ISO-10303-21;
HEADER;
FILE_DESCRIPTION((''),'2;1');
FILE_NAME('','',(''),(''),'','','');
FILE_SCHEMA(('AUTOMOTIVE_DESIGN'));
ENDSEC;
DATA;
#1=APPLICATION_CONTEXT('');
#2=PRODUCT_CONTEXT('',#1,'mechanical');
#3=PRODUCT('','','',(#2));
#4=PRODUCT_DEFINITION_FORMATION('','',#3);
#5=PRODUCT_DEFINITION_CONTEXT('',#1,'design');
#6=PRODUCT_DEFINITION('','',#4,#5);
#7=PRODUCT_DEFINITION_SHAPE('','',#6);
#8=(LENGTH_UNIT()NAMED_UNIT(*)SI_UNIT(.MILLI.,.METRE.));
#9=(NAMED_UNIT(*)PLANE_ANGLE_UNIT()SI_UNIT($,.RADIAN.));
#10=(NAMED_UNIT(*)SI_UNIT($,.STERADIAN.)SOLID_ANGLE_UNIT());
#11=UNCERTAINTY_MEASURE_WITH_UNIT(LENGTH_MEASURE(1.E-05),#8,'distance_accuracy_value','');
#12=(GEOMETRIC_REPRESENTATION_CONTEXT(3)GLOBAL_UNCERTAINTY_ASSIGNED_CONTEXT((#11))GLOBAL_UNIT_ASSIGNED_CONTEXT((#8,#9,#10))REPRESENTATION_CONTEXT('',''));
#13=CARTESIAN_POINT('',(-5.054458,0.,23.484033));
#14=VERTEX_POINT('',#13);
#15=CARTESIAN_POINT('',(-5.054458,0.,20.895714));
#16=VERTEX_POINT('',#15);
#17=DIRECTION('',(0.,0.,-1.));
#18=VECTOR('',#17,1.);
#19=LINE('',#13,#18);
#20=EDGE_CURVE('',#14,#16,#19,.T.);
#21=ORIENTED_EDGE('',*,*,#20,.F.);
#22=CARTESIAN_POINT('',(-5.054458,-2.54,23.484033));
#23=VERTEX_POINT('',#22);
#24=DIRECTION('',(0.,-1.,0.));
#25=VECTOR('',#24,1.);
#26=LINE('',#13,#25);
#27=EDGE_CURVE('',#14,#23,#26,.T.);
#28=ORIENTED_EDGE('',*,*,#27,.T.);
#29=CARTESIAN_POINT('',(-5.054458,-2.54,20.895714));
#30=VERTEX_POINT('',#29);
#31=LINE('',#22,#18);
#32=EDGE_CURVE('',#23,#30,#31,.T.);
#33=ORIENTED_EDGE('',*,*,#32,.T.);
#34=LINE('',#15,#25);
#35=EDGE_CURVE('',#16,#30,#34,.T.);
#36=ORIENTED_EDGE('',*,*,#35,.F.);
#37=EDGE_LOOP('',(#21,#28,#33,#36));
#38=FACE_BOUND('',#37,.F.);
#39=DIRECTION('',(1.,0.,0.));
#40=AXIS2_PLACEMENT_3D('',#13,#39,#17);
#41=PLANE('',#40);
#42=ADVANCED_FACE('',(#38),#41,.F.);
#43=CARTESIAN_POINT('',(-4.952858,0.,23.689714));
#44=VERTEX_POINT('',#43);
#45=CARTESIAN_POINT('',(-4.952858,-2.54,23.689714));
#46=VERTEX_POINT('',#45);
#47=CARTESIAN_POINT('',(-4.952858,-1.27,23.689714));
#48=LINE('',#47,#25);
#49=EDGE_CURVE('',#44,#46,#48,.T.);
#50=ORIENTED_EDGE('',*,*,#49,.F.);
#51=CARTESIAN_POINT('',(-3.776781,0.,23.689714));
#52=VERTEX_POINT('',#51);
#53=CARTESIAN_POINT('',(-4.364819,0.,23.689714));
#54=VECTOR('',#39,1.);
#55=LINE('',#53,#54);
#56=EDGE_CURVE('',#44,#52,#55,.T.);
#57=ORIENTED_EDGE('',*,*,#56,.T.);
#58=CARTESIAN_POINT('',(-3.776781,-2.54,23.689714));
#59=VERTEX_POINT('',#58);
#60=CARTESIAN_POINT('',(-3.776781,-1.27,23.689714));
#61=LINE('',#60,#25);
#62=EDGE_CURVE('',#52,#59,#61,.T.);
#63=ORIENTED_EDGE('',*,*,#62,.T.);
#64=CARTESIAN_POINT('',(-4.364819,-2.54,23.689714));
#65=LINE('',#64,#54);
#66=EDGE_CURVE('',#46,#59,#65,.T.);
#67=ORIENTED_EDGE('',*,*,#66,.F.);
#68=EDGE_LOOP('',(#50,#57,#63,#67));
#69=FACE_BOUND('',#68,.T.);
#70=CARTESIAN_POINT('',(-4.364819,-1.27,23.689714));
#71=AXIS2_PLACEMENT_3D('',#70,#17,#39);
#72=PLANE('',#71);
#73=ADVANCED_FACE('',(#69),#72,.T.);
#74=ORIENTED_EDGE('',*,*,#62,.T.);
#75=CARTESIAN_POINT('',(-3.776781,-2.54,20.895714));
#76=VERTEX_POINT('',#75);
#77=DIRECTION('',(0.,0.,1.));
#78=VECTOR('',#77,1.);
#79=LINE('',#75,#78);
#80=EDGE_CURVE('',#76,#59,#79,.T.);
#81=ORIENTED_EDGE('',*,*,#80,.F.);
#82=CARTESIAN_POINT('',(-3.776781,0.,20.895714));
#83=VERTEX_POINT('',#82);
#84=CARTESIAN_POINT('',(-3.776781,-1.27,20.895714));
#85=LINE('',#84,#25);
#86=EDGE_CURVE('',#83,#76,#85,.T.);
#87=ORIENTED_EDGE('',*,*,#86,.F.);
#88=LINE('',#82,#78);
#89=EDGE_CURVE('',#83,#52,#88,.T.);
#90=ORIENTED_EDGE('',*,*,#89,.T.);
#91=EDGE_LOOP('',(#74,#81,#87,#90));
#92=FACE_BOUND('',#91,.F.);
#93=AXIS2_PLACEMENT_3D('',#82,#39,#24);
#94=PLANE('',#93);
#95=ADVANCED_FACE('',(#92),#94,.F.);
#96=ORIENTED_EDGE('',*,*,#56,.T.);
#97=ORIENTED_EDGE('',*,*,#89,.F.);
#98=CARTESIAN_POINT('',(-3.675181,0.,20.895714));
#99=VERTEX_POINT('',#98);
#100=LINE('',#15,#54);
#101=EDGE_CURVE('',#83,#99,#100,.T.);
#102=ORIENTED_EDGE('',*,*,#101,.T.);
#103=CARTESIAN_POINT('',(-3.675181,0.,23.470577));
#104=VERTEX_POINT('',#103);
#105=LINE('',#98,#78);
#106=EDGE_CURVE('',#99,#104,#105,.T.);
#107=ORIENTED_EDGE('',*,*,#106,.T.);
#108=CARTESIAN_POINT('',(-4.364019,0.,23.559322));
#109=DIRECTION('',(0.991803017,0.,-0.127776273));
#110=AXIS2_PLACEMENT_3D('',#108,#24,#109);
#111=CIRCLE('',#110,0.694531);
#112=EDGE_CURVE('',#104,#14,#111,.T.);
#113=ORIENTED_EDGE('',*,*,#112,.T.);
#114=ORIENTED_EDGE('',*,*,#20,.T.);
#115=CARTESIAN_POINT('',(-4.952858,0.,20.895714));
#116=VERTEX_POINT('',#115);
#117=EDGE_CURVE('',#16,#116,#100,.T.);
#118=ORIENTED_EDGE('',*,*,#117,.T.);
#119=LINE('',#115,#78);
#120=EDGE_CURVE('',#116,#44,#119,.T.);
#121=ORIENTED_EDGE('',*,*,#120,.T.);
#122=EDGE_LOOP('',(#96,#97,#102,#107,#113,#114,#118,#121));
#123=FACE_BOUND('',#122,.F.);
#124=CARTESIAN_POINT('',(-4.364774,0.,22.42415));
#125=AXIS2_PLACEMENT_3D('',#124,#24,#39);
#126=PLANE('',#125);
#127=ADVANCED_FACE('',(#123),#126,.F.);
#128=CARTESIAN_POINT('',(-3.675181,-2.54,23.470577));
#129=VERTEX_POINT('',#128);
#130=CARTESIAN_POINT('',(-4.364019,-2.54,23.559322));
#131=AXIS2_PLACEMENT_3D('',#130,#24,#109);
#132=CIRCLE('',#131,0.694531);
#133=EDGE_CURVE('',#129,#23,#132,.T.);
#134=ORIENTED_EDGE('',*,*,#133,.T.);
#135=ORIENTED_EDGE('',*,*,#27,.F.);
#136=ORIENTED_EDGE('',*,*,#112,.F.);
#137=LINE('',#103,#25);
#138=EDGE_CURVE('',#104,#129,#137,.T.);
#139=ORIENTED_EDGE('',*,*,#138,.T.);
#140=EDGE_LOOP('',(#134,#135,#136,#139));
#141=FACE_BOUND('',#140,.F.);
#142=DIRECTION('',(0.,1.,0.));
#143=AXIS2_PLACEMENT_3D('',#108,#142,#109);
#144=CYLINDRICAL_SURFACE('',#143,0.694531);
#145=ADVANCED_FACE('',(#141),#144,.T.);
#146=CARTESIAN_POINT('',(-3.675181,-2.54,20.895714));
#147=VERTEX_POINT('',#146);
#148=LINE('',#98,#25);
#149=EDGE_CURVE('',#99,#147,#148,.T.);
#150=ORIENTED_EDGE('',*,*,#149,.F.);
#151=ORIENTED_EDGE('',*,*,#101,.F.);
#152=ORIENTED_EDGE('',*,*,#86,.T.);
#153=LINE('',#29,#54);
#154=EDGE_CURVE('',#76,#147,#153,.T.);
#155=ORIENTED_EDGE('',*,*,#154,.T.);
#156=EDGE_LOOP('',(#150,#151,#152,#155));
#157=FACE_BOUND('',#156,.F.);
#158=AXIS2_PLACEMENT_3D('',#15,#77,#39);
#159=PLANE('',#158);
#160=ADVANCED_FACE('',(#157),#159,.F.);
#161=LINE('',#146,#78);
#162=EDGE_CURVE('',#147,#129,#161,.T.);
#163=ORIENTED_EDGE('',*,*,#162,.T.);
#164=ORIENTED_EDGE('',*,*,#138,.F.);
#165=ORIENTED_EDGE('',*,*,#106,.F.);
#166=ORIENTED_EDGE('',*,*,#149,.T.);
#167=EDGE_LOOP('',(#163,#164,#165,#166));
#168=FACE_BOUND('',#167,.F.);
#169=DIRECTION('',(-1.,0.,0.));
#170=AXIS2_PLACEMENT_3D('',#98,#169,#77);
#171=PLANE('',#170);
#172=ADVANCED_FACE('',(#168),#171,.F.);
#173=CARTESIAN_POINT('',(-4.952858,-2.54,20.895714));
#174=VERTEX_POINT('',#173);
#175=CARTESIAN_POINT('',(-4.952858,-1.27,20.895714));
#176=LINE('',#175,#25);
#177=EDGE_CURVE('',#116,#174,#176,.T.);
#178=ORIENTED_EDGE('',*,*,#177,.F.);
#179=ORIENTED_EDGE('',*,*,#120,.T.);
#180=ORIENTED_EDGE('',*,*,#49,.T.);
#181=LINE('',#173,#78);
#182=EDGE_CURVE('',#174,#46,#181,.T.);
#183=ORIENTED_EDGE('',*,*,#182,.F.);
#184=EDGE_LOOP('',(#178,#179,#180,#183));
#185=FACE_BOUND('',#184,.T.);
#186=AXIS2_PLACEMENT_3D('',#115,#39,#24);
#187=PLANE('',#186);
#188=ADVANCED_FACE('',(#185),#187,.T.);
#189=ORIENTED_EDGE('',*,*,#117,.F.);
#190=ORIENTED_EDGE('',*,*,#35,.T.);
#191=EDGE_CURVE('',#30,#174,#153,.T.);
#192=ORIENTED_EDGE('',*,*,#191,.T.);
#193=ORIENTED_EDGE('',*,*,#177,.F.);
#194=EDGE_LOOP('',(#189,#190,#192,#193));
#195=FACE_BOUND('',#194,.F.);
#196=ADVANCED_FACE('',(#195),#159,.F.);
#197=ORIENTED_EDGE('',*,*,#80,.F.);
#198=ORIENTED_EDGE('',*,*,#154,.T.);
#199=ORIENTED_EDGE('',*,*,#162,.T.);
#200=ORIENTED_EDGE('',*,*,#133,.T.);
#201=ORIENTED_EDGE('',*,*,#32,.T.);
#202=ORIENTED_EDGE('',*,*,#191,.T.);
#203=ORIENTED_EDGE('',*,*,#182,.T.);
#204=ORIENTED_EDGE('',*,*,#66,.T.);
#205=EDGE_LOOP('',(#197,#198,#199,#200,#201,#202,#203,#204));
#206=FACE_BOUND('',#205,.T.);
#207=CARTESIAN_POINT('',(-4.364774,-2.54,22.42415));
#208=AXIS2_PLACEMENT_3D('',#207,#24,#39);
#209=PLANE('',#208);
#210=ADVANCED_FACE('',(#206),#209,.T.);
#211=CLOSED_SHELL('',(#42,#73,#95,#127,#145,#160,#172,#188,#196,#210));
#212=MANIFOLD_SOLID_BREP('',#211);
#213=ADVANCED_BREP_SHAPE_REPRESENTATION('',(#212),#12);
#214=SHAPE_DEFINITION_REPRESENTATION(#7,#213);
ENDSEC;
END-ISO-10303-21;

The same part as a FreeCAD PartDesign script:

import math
import FreeCAD as App
import Part
import Sketcher
from FreeCAD import Vector
Q = App.Units.Quantity

doc = App.newDocument("Part")
params = doc.addObject("Spreadsheet::Sheet", "Params")
for row, (alias, value) in enumerate([
    ("pad1_length", "0.1 in"),
    ("sketch2_height", "0.1 in"),
    ("pocket1_length", "0.11 in"),
], start=1):
    params.set(f"A{row}", alias)
    params.set(f"B{row}", "=" + value)
    params.setAlias(f"B{row}", alias)

body = doc.addObject("PartDesign::Body", "Body")

# Sketch on XZ plane
sketch1 = doc.addObject("Sketcher::SketchObject", "Sketch")
body.addObject(sketch1)
sketch1.AttachmentSupport = (doc.XZ_Plane, [""])
sketch1.MapMode = "FlatFace"
sketch1.addGeometry([
    Part.LineSegment(Vector(-3.7, 20.9, 0), Vector(-3.7, 23.5, 0)),
    Part.ArcOfCircle(Part.Circle(Vector(-4.4, 23.6, 0), Vector(0, 0, 1), 0.7), math.radians(-7), math.radians(186)),
    Part.LineSegment(Vector(-5.1, 23.5, 0), Vector(-5.1, 20.9, 0)),
    Part.LineSegment(Vector(-5.1, 20.9, 0), Vector(-3.7, 20.9, 0)),
], False)
sketch1.addConstraint([
    Sketcher.Constraint("Coincident", 0, 2, 1, 1),
    Sketcher.Constraint("Coincident", 1, 2, 2, 1),
    Sketcher.Constraint("Coincident", 2, 2, 3, 1),
    Sketcher.Constraint("Coincident", 3, 2, 0, 1),
    Sketcher.Constraint("Vertical", 0),
    Sketcher.Constraint("Vertical", 2),
    Sketcher.Constraint("Horizontal", 3),
    Sketcher.Constraint("Radius", 1, 0.694531),
    Sketcher.Constraint("DistanceY", 2, 2, 2, 1, 2.588319),
    Sketcher.Constraint("DistanceX", 3, 1, 3, 2, 1.379277),
    Sketcher.Constraint("DistanceY", 0, 1, 0, 2, 2.574863),
    Sketcher.Constraint("DistanceX", 1, 3, -1, 1, 4.364019),
    Sketcher.Constraint("DistanceY", -1, 1, 1, 3, 23.559322),
])
pad1 = doc.addObject("PartDesign::Pad", "Pad")
body.addObject(pad1)
pad1.Profile = sketch1
pad1.setExpression("Length", "Params.pad1_length")

# Sketch on XY plane
sketch2 = doc.addObject("Sketcher::SketchObject", "Sketch001")
body.addObject(sketch2)
sketch2.AttachmentSupport = (doc.XY_Plane, [""])
sketch2.MapMode = "FlatFace"
sketch2.AttachmentOffset = App.Placement(Vector(0, 0, 20.895714), App.Rotation())
sketch2.addGeometry([
    Part.LineSegment(Vector(-5, -2.5, 0), Vector(-5, 0, 0)),
    Part.LineSegment(Vector(-5, 0, 0), Vector(-3.8, 0, 0)),
    Part.LineSegment(Vector(-3.8, 0, 0), Vector(-3.8, -2.5, 0)),
    Part.LineSegment(Vector(-3.8, -2.5, 0), Vector(-5, -2.5, 0)),
], False)
sketch2.addConstraint([
    Sketcher.Constraint("Coincident", 0, 2, 1, 1),
    Sketcher.Constraint("Coincident", 1, 2, 2, 1),
    Sketcher.Constraint("Coincident", 2, 2, 3, 1),
    Sketcher.Constraint("Coincident", 3, 2, 0, 1),
    Sketcher.Constraint("Vertical", 0),
    Sketcher.Constraint("Horizontal", 1),
    Sketcher.Constraint("Vertical", 2),
    Sketcher.Constraint("Horizontal", 3),
    Sketcher.Constraint("PointOnObject", 0, 2, -1),
    Sketcher.Constraint("DistanceY", 0, 1, 0, 2, Q("0.1 in")),
    Sketcher.Constraint("DistanceX", 1, 1, 1, 2, 1.176077),
    Sketcher.Constraint("DistanceX", 1, 2, -1, 1, 3.776781),
])
sketch2.setExpression("Constraints[9]", "Params.sketch2_height")
pocket1 = doc.addObject("PartDesign::Pocket", "Pocket")
body.addObject(pocket1)
pocket1.Profile = sketch2
pocket1.setExpression("Length", "Params.pocket1_length")
pocket1.Reversed = True

doc.recompute()
